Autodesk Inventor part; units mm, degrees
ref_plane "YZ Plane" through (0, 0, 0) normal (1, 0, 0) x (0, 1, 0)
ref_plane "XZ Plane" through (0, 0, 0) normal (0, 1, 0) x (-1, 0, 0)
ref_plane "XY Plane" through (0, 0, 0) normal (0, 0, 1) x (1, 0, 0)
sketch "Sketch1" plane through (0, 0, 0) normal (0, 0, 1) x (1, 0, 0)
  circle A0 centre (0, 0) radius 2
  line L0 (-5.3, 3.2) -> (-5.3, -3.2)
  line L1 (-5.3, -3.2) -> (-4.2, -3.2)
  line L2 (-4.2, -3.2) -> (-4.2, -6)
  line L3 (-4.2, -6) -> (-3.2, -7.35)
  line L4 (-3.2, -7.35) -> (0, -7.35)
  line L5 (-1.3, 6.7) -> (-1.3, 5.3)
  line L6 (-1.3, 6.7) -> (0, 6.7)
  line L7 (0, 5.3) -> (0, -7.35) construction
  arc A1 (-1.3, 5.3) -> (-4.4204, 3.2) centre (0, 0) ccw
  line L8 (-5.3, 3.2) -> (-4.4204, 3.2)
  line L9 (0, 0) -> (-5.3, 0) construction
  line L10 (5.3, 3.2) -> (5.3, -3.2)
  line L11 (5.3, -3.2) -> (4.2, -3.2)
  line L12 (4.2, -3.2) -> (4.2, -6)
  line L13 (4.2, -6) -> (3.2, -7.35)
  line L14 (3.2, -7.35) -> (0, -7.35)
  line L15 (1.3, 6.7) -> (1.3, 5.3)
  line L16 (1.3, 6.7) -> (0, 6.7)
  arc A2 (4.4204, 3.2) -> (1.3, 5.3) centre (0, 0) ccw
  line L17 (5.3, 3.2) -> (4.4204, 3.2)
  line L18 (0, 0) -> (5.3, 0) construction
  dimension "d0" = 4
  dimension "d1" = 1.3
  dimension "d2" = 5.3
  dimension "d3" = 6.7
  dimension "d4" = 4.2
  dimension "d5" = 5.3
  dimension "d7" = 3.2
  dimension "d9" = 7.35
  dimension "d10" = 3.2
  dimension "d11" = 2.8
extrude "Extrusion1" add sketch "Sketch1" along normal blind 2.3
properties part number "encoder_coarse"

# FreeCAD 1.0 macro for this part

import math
import FreeCAD as App
import Part
import Sketcher
Q = App.Units.Quantity

doc = App.newDocument("Part")
body = doc.addObject("PartDesign::Body", "Body")

# Sketch on XY plane
sketch1 = body.newObject("Sketcher::SketchObject", "Sketch")
sketch1.AttachmentSupport = (doc.getObject("XY_Plane"), [""])
sketch1.MapMode = "FlatFace"
sketch1.addGeometry([
    Part.LineSegment(App.Vector(-4.4, 3.2, 0), App.Vector(-5.3, 3.2, 0)),  # 0
    Part.LineSegment(App.Vector(-5.3, 3.2, 0), App.Vector(-5.3, -3.2, 0)),  # 1
    Part.LineSegment(App.Vector(-5.3, -3.2, 0), App.Vector(-4.2, -3.2, 0)),  # 2
    Part.LineSegment(App.Vector(-4.2, -3.2, 0), App.Vector(-4.2, -6, 0)),  # 3
    Part.LineSegment(App.Vector(-4.2, -6, 0), App.Vector(-3.2, -7.3, 0)),  # 4
    Part.LineSegment(App.Vector(-3.2, -7.3, 0), App.Vector(3.2, -7.3, 0)),  # 5
    Part.LineSegment(App.Vector(3.2, -7.3, 0), App.Vector(4.2, -6, 0)),  # 6
    Part.LineSegment(App.Vector(4.2, -6, 0), App.Vector(4.2, -3.2, 0)),  # 7
    Part.LineSegment(App.Vector(4.2, -3.2, 0), App.Vector(5.3, -3.2, 0)),  # 8
    Part.LineSegment(App.Vector(5.3, -3.2, 0), App.Vector(5.3, 3.2, 0)),  # 9
    Part.LineSegment(App.Vector(5.3, 3.2, 0), App.Vector(4.4, 3.2, 0)),  # 10
    Part.ArcOfCircle(Part.Circle(App.Vector(0, 0, 0), App.Vector(0, 0, 1), 5.5), math.radians(36), math.radians(76)),  # 11
    Part.LineSegment(App.Vector(1.3, 5.3, 0), App.Vector(1.3, 6.7, 0)),  # 12
    Part.LineSegment(App.Vector(1.3, 6.7, 0), App.Vector(-1.3, 6.7, 0)),  # 13
    Part.LineSegment(App.Vector(-1.3, 6.7, 0), App.Vector(-1.3, 5.3, 0)),  # 14
    Part.ArcOfCircle(Part.Circle(App.Vector(0, 0, 0), App.Vector(0, 0, 1), 5.5), math.radians(104), math.radians(144)),  # 15
    Part.Circle(App.Vector(0, 0, 0), App.Vector(0, 0, 1), 2),  # 16
], False)
sketch1.addConstraint([
    Sketcher.Constraint("Coincident", 0, 2, 1, 1),
    Sketcher.Constraint("Coincident", 1, 2, 2, 1),
    Sketcher.Constraint("Coincident", 2, 2, 3, 1),
    Sketcher.Constraint("Coincident", 3, 2, 4, 1),
    Sketcher.Constraint("Coincident", 4, 2, 5, 1),
    Sketcher.Constraint("Coincident", 5, 2, 6, 1),
    Sketcher.Constraint("Coincident", 6, 2, 7, 1),
    Sketcher.Constraint("Coincident", 7, 2, 8, 1),
    Sketcher.Constraint("Coincident", 8, 2, 9, 1),
    Sketcher.Constraint("Coincident", 9, 2, 10, 1),
    Sketcher.Constraint("Coincident", 10, 2, 11, 1),
    Sketcher.Constraint("Coincident", 11, 2, 12, 1),
    Sketcher.Constraint("Coincident", 12, 2, 13, 1),
    Sketcher.Constraint("Coincident", 13, 2, 14, 1),
    Sketcher.Constraint("Coincident", 14, 2, 15, 1),
    Sketcher.Constraint("Coincident", 15, 2, 0, 1),
    Sketcher.Constraint("Horizontal", 0),
    Sketcher.Constraint("Vertical", 1),
    Sketcher.Constraint("Horizontal", 2),
    Sketcher.Constraint("Vertical", 3),
    Sketcher.Constraint("Horizontal", 5),
    Sketcher.Constraint("Vertical", 7),
    Sketcher.Constraint("Horizontal", 8),
    Sketcher.Constraint("Vertical", 9),
    Sketcher.Constraint("Horizontal", 10),
    Sketcher.Constraint("Vertical", 12),
    Sketcher.Constraint("Horizontal", 13),
    Sketcher.Constraint("Vertical", 14),
    Sketcher.Constraint("Coincident", 11, 3, -1, 1),
    Sketcher.Constraint("Coincident", 15, 3, -1, 1),
    Sketcher.Constraint("Coincident", 16, 3, -1, 1),
    Sketcher.Constraint("Equal", 11, 15),
    Sketcher.Constraint("Symmetric", 0, 2, 8, 2, -1, 1),
    Sketcher.Constraint("Symmetric", 3, 2, 6, 2, -2),
    Sketcher.Constraint("Horizontal", 2, 2, 7, 2),
    Sketcher.Constraint("Horizontal", 0, 2, 9, 2),
    Sketcher.Constraint("Horizontal", 11, 2, 14, 2),
    Sketcher.Constraint("Equal", 5, 1),
    Sketcher.Constraint("Equal", 4, 6),
    Sketcher.Constraint("Diameter", 16, Q("4 mm")),
    Sketcher.Constraint("DistanceY", 3, 2, 3, 1, Q("2.8 mm")),
    Sketcher.Constraint("DistanceX", 11, 2, 9, 2, Q("4 mm")),
    Sketcher.Constraint("DistanceX", 0, 2, -1, 1, Q("5.3 mm")),
    Sketcher.Constraint("DistanceY", -1, 1, 0, 2, Q("3.2 mm")),
    Sketcher.Constraint("DistanceX", 2, 2, -1, 1, Q("4.2 mm")),
    Sketcher.Constraint("DistanceY", -1, 1, 11, 2, Q("5.3 mm")),
    Sketcher.Constraint("DistanceY", -1, 1, 12, 2, Q("6.7 mm")),
    Sketcher.Constraint("DistanceY", 4, 2, -1, 1, Q("7.35 mm")),
])
pad1 = body.newObject("PartDesign::Pad", "Pad")
pad1.Profile = sketch1
pad1.Length = 2.3

doc.recompute()
